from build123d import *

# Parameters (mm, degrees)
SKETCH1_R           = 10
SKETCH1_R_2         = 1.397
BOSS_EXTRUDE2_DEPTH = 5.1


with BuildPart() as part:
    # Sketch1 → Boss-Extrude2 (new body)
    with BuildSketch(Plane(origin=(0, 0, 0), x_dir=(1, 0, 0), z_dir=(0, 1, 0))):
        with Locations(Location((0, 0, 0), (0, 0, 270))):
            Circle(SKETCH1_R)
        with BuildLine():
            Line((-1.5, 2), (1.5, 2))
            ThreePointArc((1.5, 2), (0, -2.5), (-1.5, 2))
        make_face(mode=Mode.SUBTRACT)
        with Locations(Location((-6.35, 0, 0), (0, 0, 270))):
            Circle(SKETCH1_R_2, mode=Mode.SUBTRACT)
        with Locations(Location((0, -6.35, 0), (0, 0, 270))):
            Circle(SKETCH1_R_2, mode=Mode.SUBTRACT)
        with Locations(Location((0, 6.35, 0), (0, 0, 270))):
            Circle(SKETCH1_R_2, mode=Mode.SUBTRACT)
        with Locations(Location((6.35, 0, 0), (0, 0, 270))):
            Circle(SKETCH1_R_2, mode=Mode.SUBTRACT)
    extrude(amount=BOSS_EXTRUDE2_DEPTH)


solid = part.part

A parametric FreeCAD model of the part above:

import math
import FreeCAD as App
import Part
import Sketcher

V = App.Vector
Q = App.Units.Quantity

doc = App.newDocument("Part")
body = doc.addObject("PartDesign::Body", "Body")

# Sketch on XZ plane
sketch1 = doc.addObject("Sketcher::SketchObject", "Sketch")
body.addObject(sketch1)
sketch1.AttachmentSupport = (doc.XZ_Plane, [""])
sketch1.MapMode = "FlatFace"
sketch1.addGeometry([
    Part.Circle(V(0, 0, 0), V(0, 0, 1), 10),  # 0
    Part.Circle(V(0, -6.3, 0), V(0, 0, 1), 1.4),  # 1
    Part.Circle(V(-6.3, 0, 0), V(0, 0, 1), 1.4),  # 2
    Part.ArcOfCircle(Part.Circle(V(0, 0, 0), V(0, 0, 1), 2.5), math.radians(-53), math.radians(233)),  # 3
    Part.LineSegment(V(-1.5, -2, 0), V(1.5, -2, 0)),  # 4
    Part.Circle(V(6.3, 0, 0), V(0, 0, 1), 1.4),  # 5
    Part.Circle(V(0, 6.3, 0), V(0, 0, 1), 1.4),  # 6
], False)
sketch1.addConstraint([
    Sketcher.Constraint("Coincident", 3, 1, 4, 2),
    Sketcher.Constraint("Coincident", 4, 1, 3, 2),
    Sketcher.Constraint("Horizontal", 4),
    Sketcher.Constraint("Coincident", 0, 3, -1, 1),
    Sketcher.Constraint("Coincident", 3, 3, -1, 1),
    Sketcher.Constraint("Equal", 1, 2),
    Sketcher.Constraint("Equal", 2, 5),
    Sketcher.Constraint("Equal", 5, 6),
    Sketcher.Constraint("Symmetric", 2, 3, 5, 3, -1, 1),
    Sketcher.Constraint("Symmetric", 1, 3, 6, 3, -1, 1),
    Sketcher.Constraint("PointOnObject", 1, 3, -2),
    Sketcher.Constraint("PointOnObject", 2, 3, -1),
    Sketcher.Constraint("Diameter", 0, Q("20 mm")),
    Sketcher.Constraint("Radius", 3, Q("2.5 mm")),
    Sketcher.Constraint("DistanceX", 4, 1, 4, 2, Q("3 mm")),
    Sketcher.Constraint("Diameter", 1, Q("2.794 mm")),
    Sketcher.Constraint("DistanceX", 2, 3, 5, 3, Q("12.7 mm")),
    Sketcher.Constraint("DistanceY", 1, 3, 6, 3, Q("12.7 mm")),
])
pad1 = doc.addObject("PartDesign::Pad", "Pad")
body.addObject(pad1)
pad1.Profile = sketch1
pad1.Length = 5.1
pad1.Reversed = True

doc.recompute()
